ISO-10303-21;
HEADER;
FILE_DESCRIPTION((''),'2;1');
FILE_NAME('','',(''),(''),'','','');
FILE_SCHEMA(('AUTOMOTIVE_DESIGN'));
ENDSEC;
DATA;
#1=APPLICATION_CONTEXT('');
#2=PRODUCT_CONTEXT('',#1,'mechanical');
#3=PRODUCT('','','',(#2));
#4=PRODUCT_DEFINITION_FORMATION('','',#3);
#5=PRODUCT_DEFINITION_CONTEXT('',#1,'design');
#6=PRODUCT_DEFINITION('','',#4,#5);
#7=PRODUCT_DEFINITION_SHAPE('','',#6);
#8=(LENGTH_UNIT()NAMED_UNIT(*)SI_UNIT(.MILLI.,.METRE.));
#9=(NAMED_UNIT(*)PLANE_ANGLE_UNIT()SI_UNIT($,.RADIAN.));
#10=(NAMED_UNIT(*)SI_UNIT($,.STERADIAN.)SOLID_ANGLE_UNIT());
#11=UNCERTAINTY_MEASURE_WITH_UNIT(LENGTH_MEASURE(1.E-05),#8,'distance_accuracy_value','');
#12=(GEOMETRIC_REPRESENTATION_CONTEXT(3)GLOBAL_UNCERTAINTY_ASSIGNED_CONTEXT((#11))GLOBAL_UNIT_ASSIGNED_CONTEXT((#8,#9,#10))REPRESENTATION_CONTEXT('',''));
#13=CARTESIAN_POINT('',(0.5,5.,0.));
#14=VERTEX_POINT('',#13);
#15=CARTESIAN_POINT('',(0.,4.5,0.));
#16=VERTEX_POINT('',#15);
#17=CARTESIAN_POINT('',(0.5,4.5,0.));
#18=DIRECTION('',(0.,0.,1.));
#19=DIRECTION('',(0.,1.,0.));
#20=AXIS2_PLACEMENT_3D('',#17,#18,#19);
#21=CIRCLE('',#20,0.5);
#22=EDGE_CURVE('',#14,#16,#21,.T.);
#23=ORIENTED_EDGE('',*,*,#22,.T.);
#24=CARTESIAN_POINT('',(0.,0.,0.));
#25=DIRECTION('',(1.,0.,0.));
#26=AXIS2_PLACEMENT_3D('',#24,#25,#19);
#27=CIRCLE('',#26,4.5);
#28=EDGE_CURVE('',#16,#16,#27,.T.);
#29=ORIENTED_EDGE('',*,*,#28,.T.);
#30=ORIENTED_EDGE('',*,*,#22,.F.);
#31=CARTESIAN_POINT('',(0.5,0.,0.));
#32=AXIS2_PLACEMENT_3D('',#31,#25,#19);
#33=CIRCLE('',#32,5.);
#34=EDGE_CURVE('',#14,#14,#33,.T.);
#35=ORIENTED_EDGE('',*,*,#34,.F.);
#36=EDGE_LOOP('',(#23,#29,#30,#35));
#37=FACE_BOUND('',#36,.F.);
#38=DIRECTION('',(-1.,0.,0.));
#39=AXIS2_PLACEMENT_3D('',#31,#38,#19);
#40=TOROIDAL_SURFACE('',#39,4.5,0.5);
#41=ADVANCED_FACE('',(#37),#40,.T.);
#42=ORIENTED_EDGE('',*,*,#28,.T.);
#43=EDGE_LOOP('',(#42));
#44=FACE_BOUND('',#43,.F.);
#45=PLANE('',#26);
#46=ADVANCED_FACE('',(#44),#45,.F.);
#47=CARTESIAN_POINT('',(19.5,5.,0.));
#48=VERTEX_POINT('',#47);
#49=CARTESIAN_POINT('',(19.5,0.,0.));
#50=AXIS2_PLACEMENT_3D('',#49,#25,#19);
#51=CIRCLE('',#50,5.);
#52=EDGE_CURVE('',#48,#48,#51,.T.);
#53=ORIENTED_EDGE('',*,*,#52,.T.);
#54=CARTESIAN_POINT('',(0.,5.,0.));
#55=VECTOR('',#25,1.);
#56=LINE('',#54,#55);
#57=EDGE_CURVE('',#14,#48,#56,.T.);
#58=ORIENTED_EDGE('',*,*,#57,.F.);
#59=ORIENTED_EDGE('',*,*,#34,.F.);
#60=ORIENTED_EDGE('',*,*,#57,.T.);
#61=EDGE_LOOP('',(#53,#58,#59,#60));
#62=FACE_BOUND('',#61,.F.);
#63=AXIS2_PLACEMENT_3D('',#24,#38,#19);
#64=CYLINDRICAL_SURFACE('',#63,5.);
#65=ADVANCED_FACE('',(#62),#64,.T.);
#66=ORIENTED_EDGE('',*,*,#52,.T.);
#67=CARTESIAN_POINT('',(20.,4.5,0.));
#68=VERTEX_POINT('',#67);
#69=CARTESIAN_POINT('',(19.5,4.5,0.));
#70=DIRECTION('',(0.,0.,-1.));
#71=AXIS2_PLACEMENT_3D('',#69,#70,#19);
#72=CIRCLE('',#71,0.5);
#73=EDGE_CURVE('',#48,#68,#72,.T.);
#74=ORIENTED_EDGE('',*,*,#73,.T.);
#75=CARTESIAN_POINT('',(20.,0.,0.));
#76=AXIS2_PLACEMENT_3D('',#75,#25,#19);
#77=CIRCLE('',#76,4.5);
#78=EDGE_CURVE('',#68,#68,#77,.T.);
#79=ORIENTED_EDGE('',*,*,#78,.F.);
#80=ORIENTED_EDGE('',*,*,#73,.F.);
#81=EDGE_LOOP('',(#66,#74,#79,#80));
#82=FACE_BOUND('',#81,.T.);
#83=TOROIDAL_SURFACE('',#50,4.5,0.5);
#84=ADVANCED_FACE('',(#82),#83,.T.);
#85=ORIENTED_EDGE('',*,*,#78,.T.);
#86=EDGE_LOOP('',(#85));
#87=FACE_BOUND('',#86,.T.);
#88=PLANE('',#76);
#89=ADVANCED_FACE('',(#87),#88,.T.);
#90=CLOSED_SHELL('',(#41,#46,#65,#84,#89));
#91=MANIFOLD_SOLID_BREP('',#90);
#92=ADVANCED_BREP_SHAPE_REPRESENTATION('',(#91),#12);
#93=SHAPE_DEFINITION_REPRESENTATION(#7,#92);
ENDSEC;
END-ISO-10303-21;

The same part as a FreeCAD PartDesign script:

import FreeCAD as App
import Part
import Sketcher
Q = App.Units.Quantity


def edges_at(feature, points):
    """Names of the edges that pass closest to the given points."""
    edges = feature.Shape.Edges
    near = lambda p: min(range(len(edges)), key=lambda i: edges[i].distToShape(Part.Vertex(*p))[0])
    return sorted({f"Edge{near(p) + 1}" for p in points})

doc = App.newDocument("Part")
body = doc.addObject("PartDesign::Body", "Body")

sketch1 = doc.addObject("Sketcher::SketchObject", "Sketch")
body.addObject(sketch1)
sketch1.AttachmentSupport = (doc.YZ_Plane, [""])
sketch1.MapMode = "FlatFace"
sketch1.addGeometry(Part.Circle(App.Vector(0, 0, 0), App.Vector(0, 0, 1), 5), False)
sketch1.addConstraint(Sketcher.Constraint("Coincident", 0, 3, -1, 1))
sketch1.addConstraint(Sketcher.Constraint("Diameter", 0, Q("10 mm")))
pad1 = doc.addObject("PartDesign::Pad", "Pad")
body.addObject(pad1)
pad1.Profile = sketch1
pad1.Length = 20
doc.recompute()

fillet = doc.addObject("PartDesign::Fillet", "Fillet")
body.addObject(fillet)
fillet.Base = (pad1, edges_at(pad1, [(20, -5, 0), (0, -5, 0)]))
fillet.Radius = 0.5

doc.recompute()
